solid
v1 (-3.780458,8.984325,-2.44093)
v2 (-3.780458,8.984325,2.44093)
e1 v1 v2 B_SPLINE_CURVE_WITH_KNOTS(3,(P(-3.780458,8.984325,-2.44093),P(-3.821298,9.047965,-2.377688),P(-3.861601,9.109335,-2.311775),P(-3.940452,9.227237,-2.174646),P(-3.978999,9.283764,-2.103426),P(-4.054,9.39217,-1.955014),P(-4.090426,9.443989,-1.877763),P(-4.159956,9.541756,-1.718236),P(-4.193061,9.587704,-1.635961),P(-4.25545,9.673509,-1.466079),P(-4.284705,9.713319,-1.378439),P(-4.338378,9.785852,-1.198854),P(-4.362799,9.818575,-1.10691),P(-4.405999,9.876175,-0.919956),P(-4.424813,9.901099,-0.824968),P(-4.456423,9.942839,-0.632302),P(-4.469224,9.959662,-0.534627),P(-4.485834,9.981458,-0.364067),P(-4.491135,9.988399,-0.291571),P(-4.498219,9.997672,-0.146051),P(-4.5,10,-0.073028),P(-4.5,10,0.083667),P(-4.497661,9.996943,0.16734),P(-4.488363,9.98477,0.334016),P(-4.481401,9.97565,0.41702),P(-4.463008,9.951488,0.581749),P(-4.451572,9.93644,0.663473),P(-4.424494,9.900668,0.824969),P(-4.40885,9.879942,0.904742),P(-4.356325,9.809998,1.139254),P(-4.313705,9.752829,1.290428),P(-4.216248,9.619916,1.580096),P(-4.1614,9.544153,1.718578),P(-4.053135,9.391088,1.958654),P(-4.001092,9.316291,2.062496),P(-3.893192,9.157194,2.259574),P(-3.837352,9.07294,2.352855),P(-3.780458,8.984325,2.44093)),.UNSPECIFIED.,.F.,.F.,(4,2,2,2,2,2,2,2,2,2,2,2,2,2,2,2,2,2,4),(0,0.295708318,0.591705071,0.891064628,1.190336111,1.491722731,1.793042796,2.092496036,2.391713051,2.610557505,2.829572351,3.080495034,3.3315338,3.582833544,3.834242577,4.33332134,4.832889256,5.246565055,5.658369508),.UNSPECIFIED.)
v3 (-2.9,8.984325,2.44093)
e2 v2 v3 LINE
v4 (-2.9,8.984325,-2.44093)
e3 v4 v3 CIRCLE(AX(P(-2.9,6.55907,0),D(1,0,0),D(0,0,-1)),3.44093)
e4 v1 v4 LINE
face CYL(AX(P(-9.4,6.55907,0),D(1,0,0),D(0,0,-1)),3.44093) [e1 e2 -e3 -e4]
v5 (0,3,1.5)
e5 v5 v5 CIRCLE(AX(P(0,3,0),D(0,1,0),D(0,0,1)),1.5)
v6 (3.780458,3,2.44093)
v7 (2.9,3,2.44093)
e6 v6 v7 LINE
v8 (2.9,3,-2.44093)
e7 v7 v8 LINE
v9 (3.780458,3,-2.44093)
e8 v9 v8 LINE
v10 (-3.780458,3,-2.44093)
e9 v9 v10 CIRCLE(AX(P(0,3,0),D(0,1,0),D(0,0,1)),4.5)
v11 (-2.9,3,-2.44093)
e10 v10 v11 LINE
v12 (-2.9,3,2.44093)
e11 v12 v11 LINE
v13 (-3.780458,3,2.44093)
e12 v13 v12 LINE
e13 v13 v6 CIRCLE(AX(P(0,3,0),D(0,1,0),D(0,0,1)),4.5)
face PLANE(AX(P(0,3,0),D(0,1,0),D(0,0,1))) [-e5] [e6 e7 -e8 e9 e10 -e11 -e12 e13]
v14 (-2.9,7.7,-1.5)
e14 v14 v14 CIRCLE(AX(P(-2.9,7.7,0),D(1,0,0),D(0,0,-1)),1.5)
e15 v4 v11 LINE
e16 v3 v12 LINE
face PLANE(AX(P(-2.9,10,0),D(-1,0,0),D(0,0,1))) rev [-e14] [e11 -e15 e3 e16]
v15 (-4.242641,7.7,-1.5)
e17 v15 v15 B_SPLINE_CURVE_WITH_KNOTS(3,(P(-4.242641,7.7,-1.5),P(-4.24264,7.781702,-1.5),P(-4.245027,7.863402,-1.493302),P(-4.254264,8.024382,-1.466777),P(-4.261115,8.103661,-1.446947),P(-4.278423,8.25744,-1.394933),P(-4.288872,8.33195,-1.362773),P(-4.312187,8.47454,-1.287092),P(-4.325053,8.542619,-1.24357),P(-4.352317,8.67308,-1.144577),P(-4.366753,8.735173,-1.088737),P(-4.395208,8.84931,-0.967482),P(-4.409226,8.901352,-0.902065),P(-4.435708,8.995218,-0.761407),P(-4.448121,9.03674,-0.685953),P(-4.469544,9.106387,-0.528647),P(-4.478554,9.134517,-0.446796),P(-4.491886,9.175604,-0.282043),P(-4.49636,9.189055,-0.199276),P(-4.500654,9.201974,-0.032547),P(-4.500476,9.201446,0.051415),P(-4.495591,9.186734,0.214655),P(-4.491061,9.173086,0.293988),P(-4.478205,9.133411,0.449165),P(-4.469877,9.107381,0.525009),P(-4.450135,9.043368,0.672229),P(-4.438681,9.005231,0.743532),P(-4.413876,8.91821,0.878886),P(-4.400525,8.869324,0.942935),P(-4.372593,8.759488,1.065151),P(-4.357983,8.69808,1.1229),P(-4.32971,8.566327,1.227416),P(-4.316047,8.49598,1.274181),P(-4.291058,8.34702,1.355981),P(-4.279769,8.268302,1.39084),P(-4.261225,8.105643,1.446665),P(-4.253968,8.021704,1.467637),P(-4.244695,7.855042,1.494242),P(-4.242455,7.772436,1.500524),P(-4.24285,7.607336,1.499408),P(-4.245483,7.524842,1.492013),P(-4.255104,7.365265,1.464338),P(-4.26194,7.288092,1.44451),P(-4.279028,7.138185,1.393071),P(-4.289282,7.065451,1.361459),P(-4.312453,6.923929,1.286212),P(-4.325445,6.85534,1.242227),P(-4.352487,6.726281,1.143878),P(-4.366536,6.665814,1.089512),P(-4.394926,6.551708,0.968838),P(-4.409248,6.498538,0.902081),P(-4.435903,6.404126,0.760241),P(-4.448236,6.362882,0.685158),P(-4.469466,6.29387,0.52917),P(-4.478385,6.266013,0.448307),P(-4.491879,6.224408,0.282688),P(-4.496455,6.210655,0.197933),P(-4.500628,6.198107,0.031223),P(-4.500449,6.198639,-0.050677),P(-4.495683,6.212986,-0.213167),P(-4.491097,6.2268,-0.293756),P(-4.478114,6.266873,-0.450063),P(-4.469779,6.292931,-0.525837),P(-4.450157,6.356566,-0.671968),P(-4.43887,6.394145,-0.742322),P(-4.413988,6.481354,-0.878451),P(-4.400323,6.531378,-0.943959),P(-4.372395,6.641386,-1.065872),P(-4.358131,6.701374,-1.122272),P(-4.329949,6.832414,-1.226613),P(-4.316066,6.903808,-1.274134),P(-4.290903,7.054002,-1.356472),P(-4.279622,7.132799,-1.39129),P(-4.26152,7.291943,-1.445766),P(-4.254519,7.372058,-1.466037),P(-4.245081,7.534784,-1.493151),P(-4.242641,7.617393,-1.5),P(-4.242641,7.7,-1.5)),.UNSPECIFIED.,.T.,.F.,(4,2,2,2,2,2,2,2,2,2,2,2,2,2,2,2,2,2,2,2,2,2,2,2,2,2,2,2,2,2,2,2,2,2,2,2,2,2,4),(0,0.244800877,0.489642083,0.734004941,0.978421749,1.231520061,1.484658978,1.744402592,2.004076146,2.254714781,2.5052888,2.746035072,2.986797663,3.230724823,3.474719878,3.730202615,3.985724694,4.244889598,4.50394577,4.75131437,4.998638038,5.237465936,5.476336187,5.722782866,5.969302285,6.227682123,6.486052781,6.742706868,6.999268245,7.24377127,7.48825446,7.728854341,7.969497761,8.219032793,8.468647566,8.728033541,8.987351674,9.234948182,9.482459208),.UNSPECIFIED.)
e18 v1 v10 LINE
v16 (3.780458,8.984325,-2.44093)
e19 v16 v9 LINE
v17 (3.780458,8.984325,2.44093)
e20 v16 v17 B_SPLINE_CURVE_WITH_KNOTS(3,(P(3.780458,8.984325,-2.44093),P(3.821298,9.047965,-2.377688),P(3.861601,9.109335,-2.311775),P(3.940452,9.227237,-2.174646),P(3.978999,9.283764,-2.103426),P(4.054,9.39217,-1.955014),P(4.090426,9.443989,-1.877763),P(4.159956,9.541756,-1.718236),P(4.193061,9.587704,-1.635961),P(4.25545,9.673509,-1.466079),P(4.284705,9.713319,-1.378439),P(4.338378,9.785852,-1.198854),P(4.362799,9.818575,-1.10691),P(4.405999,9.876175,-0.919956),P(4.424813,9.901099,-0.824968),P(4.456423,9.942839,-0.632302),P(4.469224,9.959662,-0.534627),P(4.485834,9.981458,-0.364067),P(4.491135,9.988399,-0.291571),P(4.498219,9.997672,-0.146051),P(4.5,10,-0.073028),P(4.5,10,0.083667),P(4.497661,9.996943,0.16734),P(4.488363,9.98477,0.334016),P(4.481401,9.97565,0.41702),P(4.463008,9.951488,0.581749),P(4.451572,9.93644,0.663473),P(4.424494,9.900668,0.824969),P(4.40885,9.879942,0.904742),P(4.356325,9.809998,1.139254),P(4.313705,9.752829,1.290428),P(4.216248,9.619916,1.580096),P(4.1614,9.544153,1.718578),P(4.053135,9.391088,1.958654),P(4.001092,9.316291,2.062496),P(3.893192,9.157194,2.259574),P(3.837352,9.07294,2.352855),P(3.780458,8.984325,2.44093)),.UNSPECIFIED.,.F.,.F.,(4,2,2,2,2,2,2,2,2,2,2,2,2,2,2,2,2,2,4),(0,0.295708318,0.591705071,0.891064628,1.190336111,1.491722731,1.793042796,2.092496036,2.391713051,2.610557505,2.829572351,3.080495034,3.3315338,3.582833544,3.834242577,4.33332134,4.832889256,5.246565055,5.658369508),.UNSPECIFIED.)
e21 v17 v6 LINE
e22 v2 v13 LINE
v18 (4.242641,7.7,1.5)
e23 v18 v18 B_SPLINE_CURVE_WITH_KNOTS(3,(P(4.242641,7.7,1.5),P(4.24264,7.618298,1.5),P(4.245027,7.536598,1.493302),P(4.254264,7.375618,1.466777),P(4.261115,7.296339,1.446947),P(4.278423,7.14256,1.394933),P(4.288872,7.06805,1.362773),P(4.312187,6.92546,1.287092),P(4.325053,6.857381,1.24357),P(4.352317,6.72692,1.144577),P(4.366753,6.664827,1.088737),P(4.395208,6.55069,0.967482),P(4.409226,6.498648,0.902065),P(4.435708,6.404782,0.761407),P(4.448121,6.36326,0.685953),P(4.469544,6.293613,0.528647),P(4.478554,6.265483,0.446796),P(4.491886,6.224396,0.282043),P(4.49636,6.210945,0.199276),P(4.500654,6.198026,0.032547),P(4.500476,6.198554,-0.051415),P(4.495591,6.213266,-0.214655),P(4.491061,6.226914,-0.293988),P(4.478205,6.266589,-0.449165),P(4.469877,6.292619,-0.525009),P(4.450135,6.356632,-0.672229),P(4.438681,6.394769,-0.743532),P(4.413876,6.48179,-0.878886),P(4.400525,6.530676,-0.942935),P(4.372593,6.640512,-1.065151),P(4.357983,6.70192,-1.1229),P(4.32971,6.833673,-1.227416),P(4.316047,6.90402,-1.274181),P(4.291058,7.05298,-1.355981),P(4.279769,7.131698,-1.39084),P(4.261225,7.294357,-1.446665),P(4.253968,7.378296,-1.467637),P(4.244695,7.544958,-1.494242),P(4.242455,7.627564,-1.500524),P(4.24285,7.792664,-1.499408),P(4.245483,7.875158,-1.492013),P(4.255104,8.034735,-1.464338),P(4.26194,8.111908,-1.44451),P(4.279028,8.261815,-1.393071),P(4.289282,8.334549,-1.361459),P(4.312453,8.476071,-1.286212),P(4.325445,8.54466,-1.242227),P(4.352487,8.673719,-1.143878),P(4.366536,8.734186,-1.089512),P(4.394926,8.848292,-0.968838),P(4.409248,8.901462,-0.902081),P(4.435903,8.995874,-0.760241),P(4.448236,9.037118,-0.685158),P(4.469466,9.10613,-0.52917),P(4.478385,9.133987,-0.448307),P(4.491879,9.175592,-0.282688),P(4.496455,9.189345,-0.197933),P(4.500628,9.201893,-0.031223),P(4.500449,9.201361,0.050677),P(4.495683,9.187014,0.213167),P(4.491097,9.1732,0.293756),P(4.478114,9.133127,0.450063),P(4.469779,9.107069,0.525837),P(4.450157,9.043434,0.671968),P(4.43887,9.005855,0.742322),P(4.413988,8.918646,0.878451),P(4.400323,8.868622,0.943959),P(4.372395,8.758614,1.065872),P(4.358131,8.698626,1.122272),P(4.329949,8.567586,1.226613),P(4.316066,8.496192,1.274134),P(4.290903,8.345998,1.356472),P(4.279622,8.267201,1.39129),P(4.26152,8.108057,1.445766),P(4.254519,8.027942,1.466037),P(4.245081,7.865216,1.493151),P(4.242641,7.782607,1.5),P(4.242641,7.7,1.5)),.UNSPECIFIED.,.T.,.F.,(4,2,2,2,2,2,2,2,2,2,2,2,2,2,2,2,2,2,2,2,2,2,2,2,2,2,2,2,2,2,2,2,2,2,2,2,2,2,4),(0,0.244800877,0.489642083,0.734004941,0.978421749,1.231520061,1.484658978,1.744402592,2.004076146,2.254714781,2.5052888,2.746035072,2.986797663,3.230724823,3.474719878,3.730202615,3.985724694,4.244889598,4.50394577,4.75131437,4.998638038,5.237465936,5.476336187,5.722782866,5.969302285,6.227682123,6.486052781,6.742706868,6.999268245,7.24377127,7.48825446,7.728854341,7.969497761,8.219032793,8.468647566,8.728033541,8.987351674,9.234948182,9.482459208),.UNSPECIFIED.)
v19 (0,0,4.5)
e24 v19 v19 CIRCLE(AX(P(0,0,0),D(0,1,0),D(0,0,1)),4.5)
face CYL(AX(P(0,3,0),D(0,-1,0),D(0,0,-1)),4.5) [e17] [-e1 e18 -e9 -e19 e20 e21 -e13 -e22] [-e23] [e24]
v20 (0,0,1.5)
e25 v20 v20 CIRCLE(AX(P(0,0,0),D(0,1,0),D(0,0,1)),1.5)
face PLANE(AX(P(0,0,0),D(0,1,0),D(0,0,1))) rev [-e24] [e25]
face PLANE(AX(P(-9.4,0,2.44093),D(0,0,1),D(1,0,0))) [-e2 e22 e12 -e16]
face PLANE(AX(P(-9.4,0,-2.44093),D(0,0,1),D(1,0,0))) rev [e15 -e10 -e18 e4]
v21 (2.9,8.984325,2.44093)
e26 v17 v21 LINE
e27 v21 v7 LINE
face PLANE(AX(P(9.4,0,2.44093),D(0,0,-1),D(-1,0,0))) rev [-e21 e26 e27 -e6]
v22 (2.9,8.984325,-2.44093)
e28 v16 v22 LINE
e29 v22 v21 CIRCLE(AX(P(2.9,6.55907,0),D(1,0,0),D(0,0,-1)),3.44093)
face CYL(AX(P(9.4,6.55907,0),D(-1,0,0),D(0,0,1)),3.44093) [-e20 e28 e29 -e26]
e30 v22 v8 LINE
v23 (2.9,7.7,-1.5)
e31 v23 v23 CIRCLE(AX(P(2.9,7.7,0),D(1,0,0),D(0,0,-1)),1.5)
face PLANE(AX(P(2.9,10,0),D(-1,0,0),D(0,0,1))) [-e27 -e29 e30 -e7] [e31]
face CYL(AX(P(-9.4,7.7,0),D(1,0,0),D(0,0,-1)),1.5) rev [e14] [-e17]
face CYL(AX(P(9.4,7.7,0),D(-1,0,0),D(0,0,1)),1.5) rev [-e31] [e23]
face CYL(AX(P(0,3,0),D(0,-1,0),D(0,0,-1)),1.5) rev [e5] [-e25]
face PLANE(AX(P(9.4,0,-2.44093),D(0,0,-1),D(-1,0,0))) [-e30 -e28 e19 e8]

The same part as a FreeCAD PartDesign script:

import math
import FreeCAD as App
import Part
import Sketcher

V = App.Vector

doc = App.newDocument("Part")
body = doc.addObject("PartDesign::Body", "Body")

# Sketch on XZ plane
sketch1 = body.newObject("Sketcher::SketchObject", "Sketch")
sketch1.AttachmentSupport = (doc.getObject("XZ_Plane"), [""])
sketch1.MapMode = "FlatFace"
sketch1.addGeometry(Part.Circle(V(0, 0, 0), V(0, 0, 1), 4.5), False)
sketch1.addGeometry(Part.Circle(V(0, 0, 0), V(0, 0, 1), 1.5), False)
sketch1.addConstraint(Sketcher.Constraint("Coincident", 0, 3, -1, 1))
sketch1.addConstraint(Sketcher.Constraint("Coincident", 1, 3, -1, 1))
sketch1.addConstraint(Sketcher.Constraint("Diameter", 0, 9.0))
sketch1.addConstraint(Sketcher.Constraint("Diameter", 1, 3.0))
pad1 = body.newObject("PartDesign::Pad", "Pad")
pad1.Profile = sketch1
pad1.Length = 3
pad1.Reversed = True

# Sketch on XZ plane
sketch2 = body.newObject("Sketcher::SketchObject", "Sketch001")
sketch2.AttachmentSupport = (doc.getObject("XZ_Plane"), [""])
sketch2.MapMode = "FlatFace"
sketch2.AttachmentOffset = App.Placement(V(0, 0, -3), App.Rotation())
sketch2.addGeometry(Part.ArcOfCircle(Part.Circle(V(0, 0, 0), V(0, 0, 1), 4.5), math.radians(130), math.radians(230)), False)
sketch2.addGeometry(Part.LineSegment(V(-2.9, 3.4, 0), V(-2.9, -3.4, 0)), False)
sketch2.addGeometry(Part.LineSegment(V(2.9, -3.4, 0), V(2.9, 3.4, 0)), False)
sketch2.addGeometry(Part.ArcOfCircle(Part.Circle(V(0, 0, 0), V(0, 0, 1), 4.5), math.radians(0), math.radians(50)), False)
sketch2.addGeometry(Part.ArcOfCircle(Part.Circle(V(0, 0, 0), V(0, 0, 1), 4.5), math.radians(-50), math.radians(0)), False)
sketch2.addConstraint(Sketcher.Constraint("Coincident", 0, 1, 1, 1))
sketch2.addConstraint(Sketcher.Constraint("Coincident", 1, 2, 0, 2))
sketch2.addConstraint(Sketcher.Constraint("Coincident", 2, 2, 3, 2))
sketch2.addConstraint(Sketcher.Constraint("Tangent", 3, 1, 4, 2))
sketch2.addConstraint(Sketcher.Constraint("Coincident", 4, 1, 2, 1))
sketch2.addConstraint(Sketcher.Constraint("Vertical", 1))
sketch2.addConstraint(Sketcher.Constraint("Vertical", 2))
sketch2.addConstraint(Sketcher.Constraint("Coincident", 0, 3, -1, 1))
sketch2.addConstraint(Sketcher.Constraint("Coincident", 3, 3, -1, 1))
sketch2.addConstraint(Sketcher.Constraint("Equal", 0, 3))
sketch2.addConstraint(Sketcher.Constraint("Equal", 3, 4))
sketch2.addConstraint(Sketcher.Constraint("PointOnObject", 3, 1, -1))
sketch2.addConstraint(Sketcher.Constraint("Horizontal", 0, 1, 2, 2))
sketch2.addConstraint(Sketcher.Constraint("Radius", 0, 4.5))
sketch2.addConstraint(Sketcher.Constraint("DistanceX", 0, 1, -1, 1, 2.9))
pad2 = body.newObject("PartDesign::Pad", "Pad001")
pad2.Profile = sketch2
pad2.Length = 7
pad2.Reversed = True

# Sketch on YZ plane
sketch3 = body.newObject("Sketcher::SketchObject", "Sketch002")
sketch3.AttachmentSupport = (doc.getObject("YZ_Plane"), [""])
sketch3.MapMode = "FlatFace"
sketch3.AttachmentOffset = App.Placement(V(0, 0, -2.9), App.Rotation())
sketch3.addGeometry(Part.LineSegment(V(9, -2.4, 0), V(3, -2.4, 0)), False)
sketch3.addGeometry(Part.LineSegment(V(3, -2.4, 0), V(3, -3.4, 0)), False)
sketch3.addGeometry(Part.LineSegment(V(3, -3.4, 0), V(10, -3.4, 0)), False)
sketch3.addGeometry(Part.LineSegment(V(10, -3.4, 0), V(10, 0, 0)), False)
sketch3.addGeometry(Part.ArcOfCircle(Part.Circle(V(6.6, 0, 0), V(0, 0, 1), 3.4), math.radians(-45), math.radians(0)), False)
sketch3.addGeometry(Part.ArcOfCircle(Part.Circle(V(6.6, 0, 0), V(0, 0, 1), 3.4), math.radians(0), math.radians(45)), False)
sketch3.addGeometry(Part.LineSegment(V(10, 0, 0), V(10, 3.4, 0)), False)
sketch3.addGeometry(Part.LineSegment(V(10, 3.4, 0), V(3, 3.4, 0)), False)
sketch3.addGeometry(Part.LineSegment(V(3, 3.4, 0), V(3, 2.4, 0)), False)
sketch3.addGeometry(Part.LineSegment(V(3, 2.4, 0), V(9, 2.4, 0)), False)
sketch3.addGeometry(Part.Circle(V(7.7, 0, 0), V(0, 0, 1), 1.5), False)
sketch3.addConstraint(Sketcher.Constraint("Coincident", 0, 2, 1, 1))
sketch3.addConstraint(Sketcher.Constraint("Coincident", 1, 2, 2, 1))
sketch3.addConstraint(Sketcher.Constraint("Coincident", 2, 2, 3, 1))
sketch3.addConstraint(Sketcher.Constraint("Tangent", 3, 2, 4, 2))
sketch3.addConstraint(Sketcher.Constraint("Coincident", 4, 1, 0, 1))
sketch3.addConstraint(Sketcher.Constraint("Tangent", 5, 1, 6, 1))
sketch3.addConstraint(Sketcher.Constraint("Coincident", 6, 2, 7, 1))
sketch3.addConstraint(Sketcher.Constraint("Coincident", 7, 2, 8, 1))
sketch3.addConstraint(Sketcher.Constraint("Coincident", 8, 2, 9, 1))
sketch3.addConstraint(Sketcher.Constraint("Coincident", 9, 2, 5, 2))
sketch3.addConstraint(Sketcher.Constraint("Horizontal", 0))
sketch3.addConstraint(Sketcher.Constraint("Vertical", 1))
sketch3.addConstraint(Sketcher.Constraint("Horizontal", 2))
sketch3.addConstraint(Sketcher.Constraint("Vertical", 3))
sketch3.addConstraint(Sketcher.Constraint("Vertical", 6))
sketch3.addConstraint(Sketcher.Constraint("Horizontal", 7))
sketch3.addConstraint(Sketcher.Constraint("Vertical", 8))
sketch3.addConstraint(Sketcher.Constraint("Horizontal", 9))
sketch3.addConstraint(Sketcher.Constraint("Coincident", 5, 3, 4, 3))
sketch3.addConstraint(Sketcher.Constraint("Equal", 4, 5))
sketch3.addConstraint(Sketcher.Constraint("Symmetric", 1, 2, 7, 2, -1))
sketch3.addConstraint(Sketcher.Constraint("Symmetric", 4, 1, 9, 2, -1))
sketch3.addConstraint(Sketcher.Constraint("PointOnObject", 10, 3, -1))
sketch3.addConstraint(Sketcher.Constraint("Diameter", 10, 3.0))
sketch3.addConstraint(Sketcher.Constraint("DistanceX", 2, 1, 2, 2, 7.0))
sketch3.addConstraint(Sketcher.Constraint("DistanceY", 1, 2, 1, 1, 1.0))
sketch3.addConstraint(Sketcher.Constraint("DistanceX", -1, 1, 0, 2, 3.0))
sketch3.addConstraint(Sketcher.Constraint("DistanceX", -1, 1, 10, 3, 7.7))
sketch3.addConstraint(Sketcher.Constraint("Radius", 4, 3.44093))
sketch3.addConstraint(Sketcher.Constraint("DistanceY", 3, 1, 3, 2, 3.44093))
pocket1 = body.newObject("PartDesign::Pocket", "Pocket")
pocket1.Profile = sketch3
pocket1.Length = 6.5
doc.recompute()

mirrored = body.newObject("PartDesign::Mirrored", "Mirrored")
mirrored.Originals = [pocket1]
mirrored.MirrorPlane = (doc.getObject("YZ_Plane"), [""])
body.Tip = mirrored

doc.recompute()
